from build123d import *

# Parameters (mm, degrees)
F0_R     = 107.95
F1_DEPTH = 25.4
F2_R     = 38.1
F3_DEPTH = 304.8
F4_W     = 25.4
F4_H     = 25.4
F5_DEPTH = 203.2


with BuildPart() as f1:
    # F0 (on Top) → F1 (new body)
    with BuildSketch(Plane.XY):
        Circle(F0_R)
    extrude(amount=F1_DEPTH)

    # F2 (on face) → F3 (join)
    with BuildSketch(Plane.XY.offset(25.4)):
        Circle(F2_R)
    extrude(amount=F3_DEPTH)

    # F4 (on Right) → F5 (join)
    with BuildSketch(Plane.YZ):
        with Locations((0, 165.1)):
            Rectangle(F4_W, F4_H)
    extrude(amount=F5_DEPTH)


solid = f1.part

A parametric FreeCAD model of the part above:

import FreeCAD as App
import Part
import Sketcher
Q = App.Units.Quantity

doc = App.newDocument("Part")
body = doc.addObject("PartDesign::Body", "Body")

# Sketch on XY plane
sketch1 = body.newObject("Sketcher::SketchObject", "Sketch")
sketch1.AttachmentSupport = (doc.getObject("XY_Plane"), [""])
sketch1.MapMode = "FlatFace"
sketch1.addGeometry(Part.Circle(App.Vector(0, 0, 0), App.Vector(0, 0, 1), 108), False)
sketch1.addConstraint([
    Sketcher.Constraint("Coincident", 0, 3, -1, 1),
    Sketcher.Constraint("Diameter", 0, Q("8.5 in")),
])
pad1 = body.newObject("PartDesign::Pad", "Pad")
pad1.Profile = sketch1
pad1.Length = Q("1 in")

# Sketch on XY plane
sketch2 = body.newObject("Sketcher::SketchObject", "Sketch001")
sketch2.AttachmentSupport = (doc.getObject("XY_Plane"), [""])
sketch2.MapMode = "FlatFace"
sketch2.AttachmentOffset = App.Placement(App.Vector(0, 0, 1 * 25.4), App.Rotation())
sketch2.addGeometry(Part.Circle(App.Vector(0, 0, 0), App.Vector(0, 0, 1), 38), False)
sketch2.addConstraint([
    Sketcher.Constraint("Coincident", 0, 3, -1, 1),
    Sketcher.Constraint("Diameter", 0, Q("3 in")),
])
pad2 = body.newObject("PartDesign::Pad", "Pad001")
pad2.Profile = sketch2
pad2.Length = Q("12 in")

# Sketch on YZ plane
sketch3 = body.newObject("Sketcher::SketchObject", "Sketch002")
sketch3.AttachmentSupport = (doc.getObject("YZ_Plane"), [""])
sketch3.MapMode = "FlatFace"
sketch3.addGeometry([
    Part.LineSegment(App.Vector(-13, 178, 0), App.Vector(-13, 152, 0)),
    Part.LineSegment(App.Vector(-13, 152, 0), App.Vector(13, 152, 0)),
    Part.LineSegment(App.Vector(13, 152, 0), App.Vector(13, 178, 0)),
    Part.LineSegment(App.Vector(13, 178, 0), App.Vector(-13, 178, 0)),
], False)
sketch3.addConstraint([
    Sketcher.Constraint("Coincident", 0, 2, 1, 1),
    Sketcher.Constraint("Coincident", 1, 2, 2, 1),
    Sketcher.Constraint("Coincident", 2, 2, 3, 1),
    Sketcher.Constraint("Coincident", 3, 2, 0, 1),
    Sketcher.Constraint("Vertical", 0),
    Sketcher.Constraint("Horizontal", 1),
    Sketcher.Constraint("Vertical", 2),
    Sketcher.Constraint("Horizontal", 3),
    Sketcher.Constraint("Equal", 3, 0),
    Sketcher.Constraint("DistanceX", 1, 1, 1, 2, Q("1 in")),
    Sketcher.Constraint("DistanceY", -1, 1, 0, 2, Q("6 in")),
    Sketcher.Constraint("DistanceX", 0, 2, -1, 1, Q("0.5 in")),
])
pad3 = body.newObject("PartDesign::Pad", "Pad002")
pad3.Profile = sketch3
pad3.Length = Q("8 in")

doc.recompute()
